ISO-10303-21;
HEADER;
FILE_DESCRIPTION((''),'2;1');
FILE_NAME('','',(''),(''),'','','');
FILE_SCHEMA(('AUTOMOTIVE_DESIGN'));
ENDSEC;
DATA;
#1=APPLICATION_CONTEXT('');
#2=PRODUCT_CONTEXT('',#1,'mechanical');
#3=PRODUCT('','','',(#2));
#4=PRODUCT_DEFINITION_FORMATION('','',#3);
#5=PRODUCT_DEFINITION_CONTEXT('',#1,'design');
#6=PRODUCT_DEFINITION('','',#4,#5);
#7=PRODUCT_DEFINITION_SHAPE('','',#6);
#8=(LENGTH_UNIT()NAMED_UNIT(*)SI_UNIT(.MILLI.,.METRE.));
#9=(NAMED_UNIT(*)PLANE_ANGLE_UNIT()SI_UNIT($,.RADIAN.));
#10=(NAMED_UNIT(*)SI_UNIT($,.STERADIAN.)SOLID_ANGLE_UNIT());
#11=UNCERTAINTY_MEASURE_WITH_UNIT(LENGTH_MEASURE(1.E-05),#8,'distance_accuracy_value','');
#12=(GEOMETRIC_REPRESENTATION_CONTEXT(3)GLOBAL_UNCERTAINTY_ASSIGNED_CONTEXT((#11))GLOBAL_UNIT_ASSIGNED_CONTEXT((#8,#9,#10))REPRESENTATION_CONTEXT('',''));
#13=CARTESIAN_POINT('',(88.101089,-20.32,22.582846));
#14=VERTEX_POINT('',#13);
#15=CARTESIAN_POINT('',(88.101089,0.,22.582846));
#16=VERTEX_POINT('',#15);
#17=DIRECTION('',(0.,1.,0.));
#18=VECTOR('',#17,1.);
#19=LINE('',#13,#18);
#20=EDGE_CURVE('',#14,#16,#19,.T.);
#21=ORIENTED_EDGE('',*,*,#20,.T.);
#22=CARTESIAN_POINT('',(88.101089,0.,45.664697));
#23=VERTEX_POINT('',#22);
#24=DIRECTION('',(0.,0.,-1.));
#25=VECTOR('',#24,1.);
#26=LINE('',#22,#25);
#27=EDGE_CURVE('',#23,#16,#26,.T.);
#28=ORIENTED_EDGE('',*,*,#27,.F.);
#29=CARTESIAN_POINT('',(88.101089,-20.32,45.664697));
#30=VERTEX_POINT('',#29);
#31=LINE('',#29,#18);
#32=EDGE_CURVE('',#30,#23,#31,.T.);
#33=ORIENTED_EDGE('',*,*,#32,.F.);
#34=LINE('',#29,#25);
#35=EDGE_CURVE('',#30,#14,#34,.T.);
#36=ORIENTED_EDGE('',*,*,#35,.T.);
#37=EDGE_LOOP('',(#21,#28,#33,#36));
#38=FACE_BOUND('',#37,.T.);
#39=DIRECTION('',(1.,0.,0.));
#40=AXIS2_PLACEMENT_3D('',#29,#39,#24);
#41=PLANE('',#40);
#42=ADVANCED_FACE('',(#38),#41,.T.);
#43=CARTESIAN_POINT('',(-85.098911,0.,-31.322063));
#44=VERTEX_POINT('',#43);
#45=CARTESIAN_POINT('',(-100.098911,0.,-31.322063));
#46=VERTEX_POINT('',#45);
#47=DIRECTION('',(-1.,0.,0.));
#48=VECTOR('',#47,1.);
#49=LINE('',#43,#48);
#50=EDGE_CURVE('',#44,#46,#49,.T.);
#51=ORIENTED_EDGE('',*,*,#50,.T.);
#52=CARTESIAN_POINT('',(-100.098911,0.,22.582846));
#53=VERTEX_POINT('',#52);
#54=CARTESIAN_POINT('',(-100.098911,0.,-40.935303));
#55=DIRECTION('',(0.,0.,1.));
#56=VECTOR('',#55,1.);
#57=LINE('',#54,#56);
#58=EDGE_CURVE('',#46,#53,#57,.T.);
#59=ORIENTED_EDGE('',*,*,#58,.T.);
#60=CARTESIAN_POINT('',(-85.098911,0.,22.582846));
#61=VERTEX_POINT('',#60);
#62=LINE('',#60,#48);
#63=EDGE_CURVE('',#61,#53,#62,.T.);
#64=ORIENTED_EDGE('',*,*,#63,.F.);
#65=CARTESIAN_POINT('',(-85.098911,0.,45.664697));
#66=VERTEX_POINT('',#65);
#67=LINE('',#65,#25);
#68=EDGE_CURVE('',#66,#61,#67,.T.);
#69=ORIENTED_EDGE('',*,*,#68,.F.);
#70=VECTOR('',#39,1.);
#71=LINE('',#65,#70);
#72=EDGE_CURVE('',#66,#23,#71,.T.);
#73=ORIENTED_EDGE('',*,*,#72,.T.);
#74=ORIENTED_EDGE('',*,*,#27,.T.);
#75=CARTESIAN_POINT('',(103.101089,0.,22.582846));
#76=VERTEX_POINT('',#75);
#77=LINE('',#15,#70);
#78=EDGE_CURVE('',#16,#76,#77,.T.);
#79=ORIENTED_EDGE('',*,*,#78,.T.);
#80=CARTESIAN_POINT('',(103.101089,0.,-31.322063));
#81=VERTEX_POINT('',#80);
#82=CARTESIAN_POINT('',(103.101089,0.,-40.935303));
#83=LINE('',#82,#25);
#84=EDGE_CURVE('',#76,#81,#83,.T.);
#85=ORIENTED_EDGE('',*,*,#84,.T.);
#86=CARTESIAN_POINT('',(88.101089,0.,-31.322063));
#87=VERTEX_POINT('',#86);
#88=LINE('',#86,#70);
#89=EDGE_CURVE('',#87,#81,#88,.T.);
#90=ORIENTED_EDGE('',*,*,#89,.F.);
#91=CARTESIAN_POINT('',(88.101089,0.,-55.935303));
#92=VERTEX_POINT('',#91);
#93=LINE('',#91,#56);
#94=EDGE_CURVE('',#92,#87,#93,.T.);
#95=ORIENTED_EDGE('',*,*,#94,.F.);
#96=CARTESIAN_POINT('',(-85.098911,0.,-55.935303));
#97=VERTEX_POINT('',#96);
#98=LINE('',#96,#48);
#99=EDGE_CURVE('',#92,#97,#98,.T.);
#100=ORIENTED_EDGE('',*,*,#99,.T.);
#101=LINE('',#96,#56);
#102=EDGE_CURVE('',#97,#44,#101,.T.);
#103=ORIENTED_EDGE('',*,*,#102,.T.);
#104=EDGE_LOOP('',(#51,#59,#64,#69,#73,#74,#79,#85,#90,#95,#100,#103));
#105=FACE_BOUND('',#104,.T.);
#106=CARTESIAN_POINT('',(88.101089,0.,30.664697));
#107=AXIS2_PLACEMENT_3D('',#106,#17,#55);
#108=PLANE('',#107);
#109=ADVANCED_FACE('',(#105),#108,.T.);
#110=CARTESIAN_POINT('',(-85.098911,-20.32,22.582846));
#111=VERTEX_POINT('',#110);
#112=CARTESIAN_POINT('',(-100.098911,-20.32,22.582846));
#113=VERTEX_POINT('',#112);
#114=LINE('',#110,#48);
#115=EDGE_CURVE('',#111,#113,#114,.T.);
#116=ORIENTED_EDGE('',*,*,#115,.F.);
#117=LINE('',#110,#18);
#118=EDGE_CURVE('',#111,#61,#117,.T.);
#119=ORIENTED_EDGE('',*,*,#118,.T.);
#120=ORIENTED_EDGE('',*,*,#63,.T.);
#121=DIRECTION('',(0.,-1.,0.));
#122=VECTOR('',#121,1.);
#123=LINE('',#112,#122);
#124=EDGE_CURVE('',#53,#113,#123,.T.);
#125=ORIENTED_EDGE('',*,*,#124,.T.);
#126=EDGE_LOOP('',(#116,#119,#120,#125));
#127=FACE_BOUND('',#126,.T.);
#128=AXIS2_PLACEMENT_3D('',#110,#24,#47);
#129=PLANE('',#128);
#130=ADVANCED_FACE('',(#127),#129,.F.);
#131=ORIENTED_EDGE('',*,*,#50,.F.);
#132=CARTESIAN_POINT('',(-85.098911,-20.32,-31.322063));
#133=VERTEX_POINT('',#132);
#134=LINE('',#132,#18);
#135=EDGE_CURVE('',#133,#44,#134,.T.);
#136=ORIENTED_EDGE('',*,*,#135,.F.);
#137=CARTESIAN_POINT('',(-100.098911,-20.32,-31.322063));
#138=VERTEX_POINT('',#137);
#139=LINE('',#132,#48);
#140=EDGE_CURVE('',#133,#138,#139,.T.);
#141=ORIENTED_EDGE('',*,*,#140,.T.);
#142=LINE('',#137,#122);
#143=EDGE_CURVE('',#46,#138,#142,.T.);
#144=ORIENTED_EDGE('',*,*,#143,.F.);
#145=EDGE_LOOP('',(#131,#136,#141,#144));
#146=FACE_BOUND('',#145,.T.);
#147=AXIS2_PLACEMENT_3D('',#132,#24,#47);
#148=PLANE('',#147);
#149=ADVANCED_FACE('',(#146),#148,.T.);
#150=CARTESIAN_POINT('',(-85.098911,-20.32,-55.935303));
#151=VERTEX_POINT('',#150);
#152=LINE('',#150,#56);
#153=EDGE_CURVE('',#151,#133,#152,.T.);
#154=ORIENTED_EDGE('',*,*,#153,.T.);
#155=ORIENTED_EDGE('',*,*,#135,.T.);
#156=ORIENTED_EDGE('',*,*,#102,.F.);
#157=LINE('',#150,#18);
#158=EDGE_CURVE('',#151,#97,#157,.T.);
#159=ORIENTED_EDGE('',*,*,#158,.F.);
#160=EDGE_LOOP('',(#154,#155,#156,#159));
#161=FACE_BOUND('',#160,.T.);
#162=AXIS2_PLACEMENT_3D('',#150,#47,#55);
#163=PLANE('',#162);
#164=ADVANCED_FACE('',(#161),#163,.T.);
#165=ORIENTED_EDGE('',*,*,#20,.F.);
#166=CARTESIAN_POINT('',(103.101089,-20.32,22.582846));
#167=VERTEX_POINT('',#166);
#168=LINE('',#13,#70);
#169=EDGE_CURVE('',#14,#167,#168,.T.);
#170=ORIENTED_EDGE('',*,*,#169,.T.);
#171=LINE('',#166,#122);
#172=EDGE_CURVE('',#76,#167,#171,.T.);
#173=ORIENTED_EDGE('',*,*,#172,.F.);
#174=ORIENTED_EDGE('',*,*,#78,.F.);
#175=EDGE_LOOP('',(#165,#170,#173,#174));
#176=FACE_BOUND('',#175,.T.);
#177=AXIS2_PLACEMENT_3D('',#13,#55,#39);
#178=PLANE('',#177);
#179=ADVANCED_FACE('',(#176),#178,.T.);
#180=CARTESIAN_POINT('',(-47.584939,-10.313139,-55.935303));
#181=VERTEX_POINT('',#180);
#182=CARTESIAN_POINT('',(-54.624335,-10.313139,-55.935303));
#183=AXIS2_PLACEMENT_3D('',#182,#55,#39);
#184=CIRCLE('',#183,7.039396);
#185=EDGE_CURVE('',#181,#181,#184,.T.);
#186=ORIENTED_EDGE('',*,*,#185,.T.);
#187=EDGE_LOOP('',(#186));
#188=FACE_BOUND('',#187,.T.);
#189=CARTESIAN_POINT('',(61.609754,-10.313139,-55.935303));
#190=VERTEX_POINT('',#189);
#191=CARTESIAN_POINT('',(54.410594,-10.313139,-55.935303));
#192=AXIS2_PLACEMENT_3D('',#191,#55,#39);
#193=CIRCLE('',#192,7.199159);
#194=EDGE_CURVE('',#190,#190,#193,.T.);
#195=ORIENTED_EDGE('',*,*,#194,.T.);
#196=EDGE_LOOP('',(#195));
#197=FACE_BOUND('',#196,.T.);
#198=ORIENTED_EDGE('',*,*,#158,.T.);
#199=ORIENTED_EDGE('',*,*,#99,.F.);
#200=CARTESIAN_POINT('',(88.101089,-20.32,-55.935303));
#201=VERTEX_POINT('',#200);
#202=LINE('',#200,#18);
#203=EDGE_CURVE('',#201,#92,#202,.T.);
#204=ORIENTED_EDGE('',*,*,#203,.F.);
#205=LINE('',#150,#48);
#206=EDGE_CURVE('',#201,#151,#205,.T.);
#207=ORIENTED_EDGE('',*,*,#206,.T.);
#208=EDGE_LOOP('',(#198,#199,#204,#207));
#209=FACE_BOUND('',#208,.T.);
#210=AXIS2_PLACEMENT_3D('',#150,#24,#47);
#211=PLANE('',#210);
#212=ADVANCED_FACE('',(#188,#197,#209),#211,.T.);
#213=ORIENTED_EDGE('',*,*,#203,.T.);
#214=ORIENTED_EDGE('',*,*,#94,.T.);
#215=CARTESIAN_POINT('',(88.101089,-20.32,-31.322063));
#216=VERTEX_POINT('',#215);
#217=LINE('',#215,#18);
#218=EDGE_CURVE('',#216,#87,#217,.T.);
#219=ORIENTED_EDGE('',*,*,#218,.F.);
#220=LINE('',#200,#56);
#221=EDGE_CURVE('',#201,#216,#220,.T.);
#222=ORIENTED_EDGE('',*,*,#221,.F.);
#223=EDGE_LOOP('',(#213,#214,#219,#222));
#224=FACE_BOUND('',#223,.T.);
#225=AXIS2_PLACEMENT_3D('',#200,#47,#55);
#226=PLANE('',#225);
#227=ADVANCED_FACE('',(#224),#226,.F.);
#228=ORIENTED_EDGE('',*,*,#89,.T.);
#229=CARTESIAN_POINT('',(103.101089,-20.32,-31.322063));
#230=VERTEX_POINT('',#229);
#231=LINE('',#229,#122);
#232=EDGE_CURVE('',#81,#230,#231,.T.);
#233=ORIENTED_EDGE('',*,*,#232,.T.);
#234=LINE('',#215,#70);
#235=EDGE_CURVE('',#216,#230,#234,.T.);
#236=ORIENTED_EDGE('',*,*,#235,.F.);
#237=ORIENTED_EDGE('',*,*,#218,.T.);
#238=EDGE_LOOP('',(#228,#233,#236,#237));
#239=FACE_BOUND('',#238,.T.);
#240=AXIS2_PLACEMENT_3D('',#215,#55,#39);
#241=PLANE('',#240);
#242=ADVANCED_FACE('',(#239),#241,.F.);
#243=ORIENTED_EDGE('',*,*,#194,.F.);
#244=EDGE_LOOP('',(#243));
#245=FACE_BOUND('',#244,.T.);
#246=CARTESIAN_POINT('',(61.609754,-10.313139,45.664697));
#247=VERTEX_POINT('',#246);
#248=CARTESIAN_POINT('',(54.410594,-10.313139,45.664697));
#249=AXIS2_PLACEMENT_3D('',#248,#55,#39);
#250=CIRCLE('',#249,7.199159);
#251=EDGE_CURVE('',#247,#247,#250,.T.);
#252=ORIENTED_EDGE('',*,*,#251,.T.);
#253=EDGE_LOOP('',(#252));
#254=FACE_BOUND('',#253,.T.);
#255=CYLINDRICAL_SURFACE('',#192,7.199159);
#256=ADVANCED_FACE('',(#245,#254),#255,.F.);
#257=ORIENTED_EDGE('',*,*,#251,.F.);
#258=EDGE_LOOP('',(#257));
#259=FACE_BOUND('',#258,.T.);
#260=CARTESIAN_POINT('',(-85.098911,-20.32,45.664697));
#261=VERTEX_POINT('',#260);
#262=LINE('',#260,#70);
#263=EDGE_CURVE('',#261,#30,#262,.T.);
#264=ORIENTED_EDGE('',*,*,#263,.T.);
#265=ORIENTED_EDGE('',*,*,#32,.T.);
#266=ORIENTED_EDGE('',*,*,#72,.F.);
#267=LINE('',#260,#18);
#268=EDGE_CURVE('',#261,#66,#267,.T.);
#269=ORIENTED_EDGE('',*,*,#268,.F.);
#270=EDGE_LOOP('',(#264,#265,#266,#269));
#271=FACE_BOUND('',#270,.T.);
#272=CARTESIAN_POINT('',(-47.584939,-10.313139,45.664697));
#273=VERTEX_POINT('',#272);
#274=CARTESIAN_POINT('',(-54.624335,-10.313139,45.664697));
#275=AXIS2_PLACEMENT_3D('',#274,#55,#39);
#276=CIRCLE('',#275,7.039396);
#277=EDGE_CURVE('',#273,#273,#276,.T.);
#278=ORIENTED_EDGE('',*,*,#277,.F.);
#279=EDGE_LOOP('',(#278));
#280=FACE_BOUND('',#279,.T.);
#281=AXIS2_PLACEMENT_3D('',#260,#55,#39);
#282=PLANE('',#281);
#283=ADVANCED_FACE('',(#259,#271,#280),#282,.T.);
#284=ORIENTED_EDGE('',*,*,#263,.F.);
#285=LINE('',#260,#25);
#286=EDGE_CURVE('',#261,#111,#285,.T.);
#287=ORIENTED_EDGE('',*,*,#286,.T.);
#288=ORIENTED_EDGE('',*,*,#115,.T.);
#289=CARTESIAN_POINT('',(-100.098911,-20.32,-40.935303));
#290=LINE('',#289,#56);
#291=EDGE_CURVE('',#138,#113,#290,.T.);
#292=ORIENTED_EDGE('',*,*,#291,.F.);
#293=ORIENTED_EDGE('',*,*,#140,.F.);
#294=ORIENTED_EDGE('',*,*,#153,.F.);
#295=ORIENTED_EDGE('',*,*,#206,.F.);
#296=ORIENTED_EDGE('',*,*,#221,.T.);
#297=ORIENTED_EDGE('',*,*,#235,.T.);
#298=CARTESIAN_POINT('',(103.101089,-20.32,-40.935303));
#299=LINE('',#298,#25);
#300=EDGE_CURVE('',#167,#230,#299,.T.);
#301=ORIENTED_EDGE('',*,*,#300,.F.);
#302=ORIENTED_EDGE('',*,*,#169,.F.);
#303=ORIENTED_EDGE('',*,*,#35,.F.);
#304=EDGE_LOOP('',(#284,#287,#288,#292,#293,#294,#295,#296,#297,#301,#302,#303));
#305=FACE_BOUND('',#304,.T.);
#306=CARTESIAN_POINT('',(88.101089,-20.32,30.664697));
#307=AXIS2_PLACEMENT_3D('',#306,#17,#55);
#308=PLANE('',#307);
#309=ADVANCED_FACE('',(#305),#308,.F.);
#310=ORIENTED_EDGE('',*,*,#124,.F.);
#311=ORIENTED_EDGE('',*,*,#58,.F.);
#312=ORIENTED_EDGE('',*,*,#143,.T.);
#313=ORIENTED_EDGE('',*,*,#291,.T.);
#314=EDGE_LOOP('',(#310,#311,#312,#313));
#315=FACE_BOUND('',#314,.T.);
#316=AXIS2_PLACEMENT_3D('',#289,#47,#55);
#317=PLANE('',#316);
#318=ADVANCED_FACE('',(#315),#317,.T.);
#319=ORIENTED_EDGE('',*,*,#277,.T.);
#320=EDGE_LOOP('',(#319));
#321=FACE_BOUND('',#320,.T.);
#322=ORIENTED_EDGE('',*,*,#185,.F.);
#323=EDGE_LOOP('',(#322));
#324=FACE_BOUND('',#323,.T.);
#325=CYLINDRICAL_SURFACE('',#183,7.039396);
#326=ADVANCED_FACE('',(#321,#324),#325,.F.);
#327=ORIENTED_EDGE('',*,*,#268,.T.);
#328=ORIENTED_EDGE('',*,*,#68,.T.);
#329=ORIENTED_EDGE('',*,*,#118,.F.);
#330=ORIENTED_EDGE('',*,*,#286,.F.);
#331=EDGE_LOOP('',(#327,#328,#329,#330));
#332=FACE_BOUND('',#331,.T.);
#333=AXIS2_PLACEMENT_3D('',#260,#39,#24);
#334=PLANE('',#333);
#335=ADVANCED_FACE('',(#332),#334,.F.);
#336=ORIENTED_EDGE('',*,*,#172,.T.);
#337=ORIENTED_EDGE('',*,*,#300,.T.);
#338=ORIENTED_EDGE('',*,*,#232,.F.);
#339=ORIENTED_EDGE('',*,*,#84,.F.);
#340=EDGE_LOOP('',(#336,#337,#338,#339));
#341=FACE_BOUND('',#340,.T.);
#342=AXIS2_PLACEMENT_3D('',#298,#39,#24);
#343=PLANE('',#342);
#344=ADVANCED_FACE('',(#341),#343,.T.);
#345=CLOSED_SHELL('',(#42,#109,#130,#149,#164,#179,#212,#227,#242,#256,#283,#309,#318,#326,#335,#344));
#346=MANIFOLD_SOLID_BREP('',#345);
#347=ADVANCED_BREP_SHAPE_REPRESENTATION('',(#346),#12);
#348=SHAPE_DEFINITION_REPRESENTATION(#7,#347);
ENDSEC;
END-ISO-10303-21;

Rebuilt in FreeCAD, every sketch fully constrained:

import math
import FreeCAD as App
import Part
import Sketcher

V = App.Vector


def add_polygon(sketch, points):
    """Adds a closed chain of lines whose ends are joined by coincident constraints."""
    first, n = sketch.GeometryCount, len(points)
    for a, b in zip(points, points[1:] + points[:1]):
        sketch.addGeometry(Part.LineSegment(App.Vector(*a, 0), App.Vector(*b, 0)), False)
    for i in range(n):
        sketch.addConstraint(Sketcher.Constraint("Coincident", first + i, 2, first + (i + 1) % n, 1))

doc = App.newDocument("Part")
body = doc.addObject("PartDesign::Body", "Body")

sketch1 = doc.addObject("Sketcher::SketchObject", "Sketch")
body.addObject(sketch1)
sketch1.AttachmentSupport = (doc.XZ_Plane, [""])
sketch1.MapMode = "FlatFace"
sketch1.addGeometry([
    Part.LineSegment(V(88, -56, 0), V(-85, -56, 0)),
    Part.ArcOfCircle(Part.Circle(V(-85, -41, 0), V(0, 0, 1), 15), math.radians(180), math.radians(270)),
    Part.LineSegment(V(-100, -41, 0), V(-100, 31, 0)),
    Part.ArcOfCircle(Part.Circle(V(-85, 31, 0), V(0, 0, 1), 15), math.radians(90), math.radians(180)),
    Part.LineSegment(V(-85, 46, 0), V(88, 46, 0)),
    Part.ArcOfCircle(Part.Circle(V(88, 31, 0), V(0, 0, 1), 15), math.radians(0), math.radians(90)),
    Part.LineSegment(V(103, 31, 0), V(103, -41, 0)),
    Part.ArcOfCircle(Part.Circle(V(88, -41, 0), V(0, 0, 1), 15), math.radians(-90), math.radians(0)),
], False)
sketch1.addConstraint([
    Sketcher.Constraint("Tangent", 0, 2, 1, 2),
    Sketcher.Constraint("Tangent", 1, 1, 2, 1),
    Sketcher.Constraint("Tangent", 2, 2, 3, 2),
    Sketcher.Constraint("Tangent", 3, 1, 4, 1),
    Sketcher.Constraint("Tangent", 4, 2, 5, 2),
    Sketcher.Constraint("Tangent", 5, 1, 6, 1),
    Sketcher.Constraint("Tangent", 6, 2, 7, 2),
    Sketcher.Constraint("Tangent", 7, 1, 0, 1),
    Sketcher.Constraint("Horizontal", 0),
    Sketcher.Constraint("Vertical", 2),
    Sketcher.Constraint("Horizontal", 4),
    Sketcher.Constraint("Vertical", 6),
    Sketcher.Constraint("Equal", 1, 3),
    Sketcher.Constraint("Equal", 3, 5),
    Sketcher.Constraint("Equal", 5, 7),
    Sketcher.Constraint("Radius", 1, 15.0),
    Sketcher.Constraint("DistanceX", 0, 2, 0, 1, 173.2),
    Sketcher.Constraint("DistanceY", 2, 1, 2, 2, 71.6),
    Sketcher.Constraint("DistanceX", 1, 3, -1, 1, 85.098911),
    Sketcher.Constraint("DistanceY", 1, 3, -1, 1, 40.935303),
])
pad1 = doc.addObject("PartDesign::Pad", "Pad")
body.addObject(pad1)
pad1.Profile = sketch1
pad1.Length = 20.32

sketch2 = doc.addObject("Sketcher::SketchObject", "Sketch001")
body.addObject(sketch2)
sketch2.AttachmentSupport = (doc.XZ_Plane, [""])
sketch2.MapMode = "FlatFace"
add_polygon(sketch2, [(88, -56), (88, -31), (112, -31), (112, -56)])
add_polygon(sketch2, [(88, 23), (88, 46), (112, 46), (112, 23)])
add_polygon(sketch2, [(-111, -56), (-111, -31), (-85, -31), (-85, -56)])
add_polygon(sketch2, [(-111, 23), (-111, 46), (-85, 46), (-85, 23)])
sketch2.addConstraint([
    Sketcher.Constraint("Vertical", 0),
    Sketcher.Constraint("Horizontal", 1),
    Sketcher.Constraint("Vertical", 2),
    Sketcher.Constraint("Horizontal", 3),
    Sketcher.Constraint("Vertical", 4),
    Sketcher.Constraint("Horizontal", 5),
    Sketcher.Constraint("Vertical", 6),
    Sketcher.Constraint("Horizontal", 7),
    Sketcher.Constraint("Vertical", 8),
    Sketcher.Constraint("Horizontal", 9),
    Sketcher.Constraint("Vertical", 10),
    Sketcher.Constraint("Horizontal", 11),
    Sketcher.Constraint("Vertical", 12),
    Sketcher.Constraint("Horizontal", 13),
    Sketcher.Constraint("Vertical", 14),
    Sketcher.Constraint("Horizontal", 15),
    Sketcher.Constraint("Horizontal", 1, 2, 8, 2),
    Sketcher.Constraint("Horizontal", 3, 2, 10, 2),
    Sketcher.Constraint("Horizontal", 5, 2, 12, 2),
    Sketcher.Constraint("Horizontal", 7, 2, 14, 2),
    Sketcher.Constraint("Vertical", 3, 2, 4, 2),
    Sketcher.Constraint("Vertical", 2, 2, 5, 2),
    Sketcher.Constraint("Vertical", 11, 2, 12, 2),
    Sketcher.Constraint("Vertical", 10, 2, 13, 2),
    Sketcher.Constraint("DistanceY", 3, 2, 4, 2, 101.6),
    Sketcher.Constraint("DistanceX", 9, 2, 0, 2, 173.2),
    Sketcher.Constraint("DistanceX", 1, 1, 1, 2, 23.583471),
    Sketcher.Constraint("DistanceY", 0, 1, 0, 2, 24.61324),
    Sketcher.Constraint("DistanceY", 4, 1, 4, 2, 23.081851),
    Sketcher.Constraint("DistanceX", 9, 1, 9, 2, 25.880556),
    Sketcher.Constraint("DistanceX", -1, 1, 0, 2, 88.101089),
    Sketcher.Constraint("DistanceY", 0, 2, -1, 1, 31.322063),
])
pocket1 = doc.addObject("PartDesign::Pocket", "Pocket")
body.addObject(pocket1)
pocket1.Profile = sketch2
pocket1.Type = "ThroughAll"
pocket1.Reversed = True

sketch3 = doc.addObject("Sketcher::SketchObject", "Sketch002")
body.addObject(sketch3)
sketch3.AttachmentSupport = (doc.XY_Plane, [""])
sketch3.MapMode = "FlatFace"
sketch3.AttachmentOffset = App.Placement(V(0, 0, 45.664697), App.Rotation())
sketch3.addGeometry(Part.Circle(V(54, -10, 0), V(0, 0, 1), 7), False)
sketch3.addConstraint([
    Sketcher.Constraint("Diameter", 0, 14.398319),
    Sketcher.Constraint("DistanceY", 0, 3, -1, 1, 10.313139),
    Sketcher.Constraint("DistanceX", -1, 1, 0, 3, 54.410594),
])
pocket2 = doc.addObject("PartDesign::Pocket", "Pocket001")
body.addObject(pocket2)
pocket2.Profile = sketch3
pocket2.Type = "ThroughAll"

sketch4 = doc.addObject("Sketcher::SketchObject", "Sketch003")
body.addObject(sketch4)
sketch4.AttachmentSupport = (doc.XY_Plane, [""])
sketch4.MapMode = "FlatFace"
sketch4.AttachmentOffset = App.Placement(V(0, 0, 45.664697), App.Rotation())
sketch4.addGeometry([
    Part.Circle(V(54, -10, 0), V(0, 0, 1), 7),
    Part.Circle(V(-55, -10, 0), V(0, 0, 1), 7),
], False)
sketch4.addConstraint([
    Sketcher.Constraint("Horizontal", 0, 3, 1, 3),
    Sketcher.Constraint("Diameter", 0, 14.398319),
    Sketcher.Constraint("Diameter", 1, 14.078792),
    Sketcher.Constraint("DistanceY", 0, 3, -1, 1, 10.313139),
    Sketcher.Constraint("DistanceX", 1, 3, 0, 3, 109.034929),
    Sketcher.Constraint("DistanceX", -1, 1, 0, 3, 54.410594),
])
pocket3 = doc.addObject("PartDesign::Pocket", "Pocket002")
body.addObject(pocket3)
pocket3.Profile = sketch4
pocket3.Type = "ThroughAll"

doc.recompute()
